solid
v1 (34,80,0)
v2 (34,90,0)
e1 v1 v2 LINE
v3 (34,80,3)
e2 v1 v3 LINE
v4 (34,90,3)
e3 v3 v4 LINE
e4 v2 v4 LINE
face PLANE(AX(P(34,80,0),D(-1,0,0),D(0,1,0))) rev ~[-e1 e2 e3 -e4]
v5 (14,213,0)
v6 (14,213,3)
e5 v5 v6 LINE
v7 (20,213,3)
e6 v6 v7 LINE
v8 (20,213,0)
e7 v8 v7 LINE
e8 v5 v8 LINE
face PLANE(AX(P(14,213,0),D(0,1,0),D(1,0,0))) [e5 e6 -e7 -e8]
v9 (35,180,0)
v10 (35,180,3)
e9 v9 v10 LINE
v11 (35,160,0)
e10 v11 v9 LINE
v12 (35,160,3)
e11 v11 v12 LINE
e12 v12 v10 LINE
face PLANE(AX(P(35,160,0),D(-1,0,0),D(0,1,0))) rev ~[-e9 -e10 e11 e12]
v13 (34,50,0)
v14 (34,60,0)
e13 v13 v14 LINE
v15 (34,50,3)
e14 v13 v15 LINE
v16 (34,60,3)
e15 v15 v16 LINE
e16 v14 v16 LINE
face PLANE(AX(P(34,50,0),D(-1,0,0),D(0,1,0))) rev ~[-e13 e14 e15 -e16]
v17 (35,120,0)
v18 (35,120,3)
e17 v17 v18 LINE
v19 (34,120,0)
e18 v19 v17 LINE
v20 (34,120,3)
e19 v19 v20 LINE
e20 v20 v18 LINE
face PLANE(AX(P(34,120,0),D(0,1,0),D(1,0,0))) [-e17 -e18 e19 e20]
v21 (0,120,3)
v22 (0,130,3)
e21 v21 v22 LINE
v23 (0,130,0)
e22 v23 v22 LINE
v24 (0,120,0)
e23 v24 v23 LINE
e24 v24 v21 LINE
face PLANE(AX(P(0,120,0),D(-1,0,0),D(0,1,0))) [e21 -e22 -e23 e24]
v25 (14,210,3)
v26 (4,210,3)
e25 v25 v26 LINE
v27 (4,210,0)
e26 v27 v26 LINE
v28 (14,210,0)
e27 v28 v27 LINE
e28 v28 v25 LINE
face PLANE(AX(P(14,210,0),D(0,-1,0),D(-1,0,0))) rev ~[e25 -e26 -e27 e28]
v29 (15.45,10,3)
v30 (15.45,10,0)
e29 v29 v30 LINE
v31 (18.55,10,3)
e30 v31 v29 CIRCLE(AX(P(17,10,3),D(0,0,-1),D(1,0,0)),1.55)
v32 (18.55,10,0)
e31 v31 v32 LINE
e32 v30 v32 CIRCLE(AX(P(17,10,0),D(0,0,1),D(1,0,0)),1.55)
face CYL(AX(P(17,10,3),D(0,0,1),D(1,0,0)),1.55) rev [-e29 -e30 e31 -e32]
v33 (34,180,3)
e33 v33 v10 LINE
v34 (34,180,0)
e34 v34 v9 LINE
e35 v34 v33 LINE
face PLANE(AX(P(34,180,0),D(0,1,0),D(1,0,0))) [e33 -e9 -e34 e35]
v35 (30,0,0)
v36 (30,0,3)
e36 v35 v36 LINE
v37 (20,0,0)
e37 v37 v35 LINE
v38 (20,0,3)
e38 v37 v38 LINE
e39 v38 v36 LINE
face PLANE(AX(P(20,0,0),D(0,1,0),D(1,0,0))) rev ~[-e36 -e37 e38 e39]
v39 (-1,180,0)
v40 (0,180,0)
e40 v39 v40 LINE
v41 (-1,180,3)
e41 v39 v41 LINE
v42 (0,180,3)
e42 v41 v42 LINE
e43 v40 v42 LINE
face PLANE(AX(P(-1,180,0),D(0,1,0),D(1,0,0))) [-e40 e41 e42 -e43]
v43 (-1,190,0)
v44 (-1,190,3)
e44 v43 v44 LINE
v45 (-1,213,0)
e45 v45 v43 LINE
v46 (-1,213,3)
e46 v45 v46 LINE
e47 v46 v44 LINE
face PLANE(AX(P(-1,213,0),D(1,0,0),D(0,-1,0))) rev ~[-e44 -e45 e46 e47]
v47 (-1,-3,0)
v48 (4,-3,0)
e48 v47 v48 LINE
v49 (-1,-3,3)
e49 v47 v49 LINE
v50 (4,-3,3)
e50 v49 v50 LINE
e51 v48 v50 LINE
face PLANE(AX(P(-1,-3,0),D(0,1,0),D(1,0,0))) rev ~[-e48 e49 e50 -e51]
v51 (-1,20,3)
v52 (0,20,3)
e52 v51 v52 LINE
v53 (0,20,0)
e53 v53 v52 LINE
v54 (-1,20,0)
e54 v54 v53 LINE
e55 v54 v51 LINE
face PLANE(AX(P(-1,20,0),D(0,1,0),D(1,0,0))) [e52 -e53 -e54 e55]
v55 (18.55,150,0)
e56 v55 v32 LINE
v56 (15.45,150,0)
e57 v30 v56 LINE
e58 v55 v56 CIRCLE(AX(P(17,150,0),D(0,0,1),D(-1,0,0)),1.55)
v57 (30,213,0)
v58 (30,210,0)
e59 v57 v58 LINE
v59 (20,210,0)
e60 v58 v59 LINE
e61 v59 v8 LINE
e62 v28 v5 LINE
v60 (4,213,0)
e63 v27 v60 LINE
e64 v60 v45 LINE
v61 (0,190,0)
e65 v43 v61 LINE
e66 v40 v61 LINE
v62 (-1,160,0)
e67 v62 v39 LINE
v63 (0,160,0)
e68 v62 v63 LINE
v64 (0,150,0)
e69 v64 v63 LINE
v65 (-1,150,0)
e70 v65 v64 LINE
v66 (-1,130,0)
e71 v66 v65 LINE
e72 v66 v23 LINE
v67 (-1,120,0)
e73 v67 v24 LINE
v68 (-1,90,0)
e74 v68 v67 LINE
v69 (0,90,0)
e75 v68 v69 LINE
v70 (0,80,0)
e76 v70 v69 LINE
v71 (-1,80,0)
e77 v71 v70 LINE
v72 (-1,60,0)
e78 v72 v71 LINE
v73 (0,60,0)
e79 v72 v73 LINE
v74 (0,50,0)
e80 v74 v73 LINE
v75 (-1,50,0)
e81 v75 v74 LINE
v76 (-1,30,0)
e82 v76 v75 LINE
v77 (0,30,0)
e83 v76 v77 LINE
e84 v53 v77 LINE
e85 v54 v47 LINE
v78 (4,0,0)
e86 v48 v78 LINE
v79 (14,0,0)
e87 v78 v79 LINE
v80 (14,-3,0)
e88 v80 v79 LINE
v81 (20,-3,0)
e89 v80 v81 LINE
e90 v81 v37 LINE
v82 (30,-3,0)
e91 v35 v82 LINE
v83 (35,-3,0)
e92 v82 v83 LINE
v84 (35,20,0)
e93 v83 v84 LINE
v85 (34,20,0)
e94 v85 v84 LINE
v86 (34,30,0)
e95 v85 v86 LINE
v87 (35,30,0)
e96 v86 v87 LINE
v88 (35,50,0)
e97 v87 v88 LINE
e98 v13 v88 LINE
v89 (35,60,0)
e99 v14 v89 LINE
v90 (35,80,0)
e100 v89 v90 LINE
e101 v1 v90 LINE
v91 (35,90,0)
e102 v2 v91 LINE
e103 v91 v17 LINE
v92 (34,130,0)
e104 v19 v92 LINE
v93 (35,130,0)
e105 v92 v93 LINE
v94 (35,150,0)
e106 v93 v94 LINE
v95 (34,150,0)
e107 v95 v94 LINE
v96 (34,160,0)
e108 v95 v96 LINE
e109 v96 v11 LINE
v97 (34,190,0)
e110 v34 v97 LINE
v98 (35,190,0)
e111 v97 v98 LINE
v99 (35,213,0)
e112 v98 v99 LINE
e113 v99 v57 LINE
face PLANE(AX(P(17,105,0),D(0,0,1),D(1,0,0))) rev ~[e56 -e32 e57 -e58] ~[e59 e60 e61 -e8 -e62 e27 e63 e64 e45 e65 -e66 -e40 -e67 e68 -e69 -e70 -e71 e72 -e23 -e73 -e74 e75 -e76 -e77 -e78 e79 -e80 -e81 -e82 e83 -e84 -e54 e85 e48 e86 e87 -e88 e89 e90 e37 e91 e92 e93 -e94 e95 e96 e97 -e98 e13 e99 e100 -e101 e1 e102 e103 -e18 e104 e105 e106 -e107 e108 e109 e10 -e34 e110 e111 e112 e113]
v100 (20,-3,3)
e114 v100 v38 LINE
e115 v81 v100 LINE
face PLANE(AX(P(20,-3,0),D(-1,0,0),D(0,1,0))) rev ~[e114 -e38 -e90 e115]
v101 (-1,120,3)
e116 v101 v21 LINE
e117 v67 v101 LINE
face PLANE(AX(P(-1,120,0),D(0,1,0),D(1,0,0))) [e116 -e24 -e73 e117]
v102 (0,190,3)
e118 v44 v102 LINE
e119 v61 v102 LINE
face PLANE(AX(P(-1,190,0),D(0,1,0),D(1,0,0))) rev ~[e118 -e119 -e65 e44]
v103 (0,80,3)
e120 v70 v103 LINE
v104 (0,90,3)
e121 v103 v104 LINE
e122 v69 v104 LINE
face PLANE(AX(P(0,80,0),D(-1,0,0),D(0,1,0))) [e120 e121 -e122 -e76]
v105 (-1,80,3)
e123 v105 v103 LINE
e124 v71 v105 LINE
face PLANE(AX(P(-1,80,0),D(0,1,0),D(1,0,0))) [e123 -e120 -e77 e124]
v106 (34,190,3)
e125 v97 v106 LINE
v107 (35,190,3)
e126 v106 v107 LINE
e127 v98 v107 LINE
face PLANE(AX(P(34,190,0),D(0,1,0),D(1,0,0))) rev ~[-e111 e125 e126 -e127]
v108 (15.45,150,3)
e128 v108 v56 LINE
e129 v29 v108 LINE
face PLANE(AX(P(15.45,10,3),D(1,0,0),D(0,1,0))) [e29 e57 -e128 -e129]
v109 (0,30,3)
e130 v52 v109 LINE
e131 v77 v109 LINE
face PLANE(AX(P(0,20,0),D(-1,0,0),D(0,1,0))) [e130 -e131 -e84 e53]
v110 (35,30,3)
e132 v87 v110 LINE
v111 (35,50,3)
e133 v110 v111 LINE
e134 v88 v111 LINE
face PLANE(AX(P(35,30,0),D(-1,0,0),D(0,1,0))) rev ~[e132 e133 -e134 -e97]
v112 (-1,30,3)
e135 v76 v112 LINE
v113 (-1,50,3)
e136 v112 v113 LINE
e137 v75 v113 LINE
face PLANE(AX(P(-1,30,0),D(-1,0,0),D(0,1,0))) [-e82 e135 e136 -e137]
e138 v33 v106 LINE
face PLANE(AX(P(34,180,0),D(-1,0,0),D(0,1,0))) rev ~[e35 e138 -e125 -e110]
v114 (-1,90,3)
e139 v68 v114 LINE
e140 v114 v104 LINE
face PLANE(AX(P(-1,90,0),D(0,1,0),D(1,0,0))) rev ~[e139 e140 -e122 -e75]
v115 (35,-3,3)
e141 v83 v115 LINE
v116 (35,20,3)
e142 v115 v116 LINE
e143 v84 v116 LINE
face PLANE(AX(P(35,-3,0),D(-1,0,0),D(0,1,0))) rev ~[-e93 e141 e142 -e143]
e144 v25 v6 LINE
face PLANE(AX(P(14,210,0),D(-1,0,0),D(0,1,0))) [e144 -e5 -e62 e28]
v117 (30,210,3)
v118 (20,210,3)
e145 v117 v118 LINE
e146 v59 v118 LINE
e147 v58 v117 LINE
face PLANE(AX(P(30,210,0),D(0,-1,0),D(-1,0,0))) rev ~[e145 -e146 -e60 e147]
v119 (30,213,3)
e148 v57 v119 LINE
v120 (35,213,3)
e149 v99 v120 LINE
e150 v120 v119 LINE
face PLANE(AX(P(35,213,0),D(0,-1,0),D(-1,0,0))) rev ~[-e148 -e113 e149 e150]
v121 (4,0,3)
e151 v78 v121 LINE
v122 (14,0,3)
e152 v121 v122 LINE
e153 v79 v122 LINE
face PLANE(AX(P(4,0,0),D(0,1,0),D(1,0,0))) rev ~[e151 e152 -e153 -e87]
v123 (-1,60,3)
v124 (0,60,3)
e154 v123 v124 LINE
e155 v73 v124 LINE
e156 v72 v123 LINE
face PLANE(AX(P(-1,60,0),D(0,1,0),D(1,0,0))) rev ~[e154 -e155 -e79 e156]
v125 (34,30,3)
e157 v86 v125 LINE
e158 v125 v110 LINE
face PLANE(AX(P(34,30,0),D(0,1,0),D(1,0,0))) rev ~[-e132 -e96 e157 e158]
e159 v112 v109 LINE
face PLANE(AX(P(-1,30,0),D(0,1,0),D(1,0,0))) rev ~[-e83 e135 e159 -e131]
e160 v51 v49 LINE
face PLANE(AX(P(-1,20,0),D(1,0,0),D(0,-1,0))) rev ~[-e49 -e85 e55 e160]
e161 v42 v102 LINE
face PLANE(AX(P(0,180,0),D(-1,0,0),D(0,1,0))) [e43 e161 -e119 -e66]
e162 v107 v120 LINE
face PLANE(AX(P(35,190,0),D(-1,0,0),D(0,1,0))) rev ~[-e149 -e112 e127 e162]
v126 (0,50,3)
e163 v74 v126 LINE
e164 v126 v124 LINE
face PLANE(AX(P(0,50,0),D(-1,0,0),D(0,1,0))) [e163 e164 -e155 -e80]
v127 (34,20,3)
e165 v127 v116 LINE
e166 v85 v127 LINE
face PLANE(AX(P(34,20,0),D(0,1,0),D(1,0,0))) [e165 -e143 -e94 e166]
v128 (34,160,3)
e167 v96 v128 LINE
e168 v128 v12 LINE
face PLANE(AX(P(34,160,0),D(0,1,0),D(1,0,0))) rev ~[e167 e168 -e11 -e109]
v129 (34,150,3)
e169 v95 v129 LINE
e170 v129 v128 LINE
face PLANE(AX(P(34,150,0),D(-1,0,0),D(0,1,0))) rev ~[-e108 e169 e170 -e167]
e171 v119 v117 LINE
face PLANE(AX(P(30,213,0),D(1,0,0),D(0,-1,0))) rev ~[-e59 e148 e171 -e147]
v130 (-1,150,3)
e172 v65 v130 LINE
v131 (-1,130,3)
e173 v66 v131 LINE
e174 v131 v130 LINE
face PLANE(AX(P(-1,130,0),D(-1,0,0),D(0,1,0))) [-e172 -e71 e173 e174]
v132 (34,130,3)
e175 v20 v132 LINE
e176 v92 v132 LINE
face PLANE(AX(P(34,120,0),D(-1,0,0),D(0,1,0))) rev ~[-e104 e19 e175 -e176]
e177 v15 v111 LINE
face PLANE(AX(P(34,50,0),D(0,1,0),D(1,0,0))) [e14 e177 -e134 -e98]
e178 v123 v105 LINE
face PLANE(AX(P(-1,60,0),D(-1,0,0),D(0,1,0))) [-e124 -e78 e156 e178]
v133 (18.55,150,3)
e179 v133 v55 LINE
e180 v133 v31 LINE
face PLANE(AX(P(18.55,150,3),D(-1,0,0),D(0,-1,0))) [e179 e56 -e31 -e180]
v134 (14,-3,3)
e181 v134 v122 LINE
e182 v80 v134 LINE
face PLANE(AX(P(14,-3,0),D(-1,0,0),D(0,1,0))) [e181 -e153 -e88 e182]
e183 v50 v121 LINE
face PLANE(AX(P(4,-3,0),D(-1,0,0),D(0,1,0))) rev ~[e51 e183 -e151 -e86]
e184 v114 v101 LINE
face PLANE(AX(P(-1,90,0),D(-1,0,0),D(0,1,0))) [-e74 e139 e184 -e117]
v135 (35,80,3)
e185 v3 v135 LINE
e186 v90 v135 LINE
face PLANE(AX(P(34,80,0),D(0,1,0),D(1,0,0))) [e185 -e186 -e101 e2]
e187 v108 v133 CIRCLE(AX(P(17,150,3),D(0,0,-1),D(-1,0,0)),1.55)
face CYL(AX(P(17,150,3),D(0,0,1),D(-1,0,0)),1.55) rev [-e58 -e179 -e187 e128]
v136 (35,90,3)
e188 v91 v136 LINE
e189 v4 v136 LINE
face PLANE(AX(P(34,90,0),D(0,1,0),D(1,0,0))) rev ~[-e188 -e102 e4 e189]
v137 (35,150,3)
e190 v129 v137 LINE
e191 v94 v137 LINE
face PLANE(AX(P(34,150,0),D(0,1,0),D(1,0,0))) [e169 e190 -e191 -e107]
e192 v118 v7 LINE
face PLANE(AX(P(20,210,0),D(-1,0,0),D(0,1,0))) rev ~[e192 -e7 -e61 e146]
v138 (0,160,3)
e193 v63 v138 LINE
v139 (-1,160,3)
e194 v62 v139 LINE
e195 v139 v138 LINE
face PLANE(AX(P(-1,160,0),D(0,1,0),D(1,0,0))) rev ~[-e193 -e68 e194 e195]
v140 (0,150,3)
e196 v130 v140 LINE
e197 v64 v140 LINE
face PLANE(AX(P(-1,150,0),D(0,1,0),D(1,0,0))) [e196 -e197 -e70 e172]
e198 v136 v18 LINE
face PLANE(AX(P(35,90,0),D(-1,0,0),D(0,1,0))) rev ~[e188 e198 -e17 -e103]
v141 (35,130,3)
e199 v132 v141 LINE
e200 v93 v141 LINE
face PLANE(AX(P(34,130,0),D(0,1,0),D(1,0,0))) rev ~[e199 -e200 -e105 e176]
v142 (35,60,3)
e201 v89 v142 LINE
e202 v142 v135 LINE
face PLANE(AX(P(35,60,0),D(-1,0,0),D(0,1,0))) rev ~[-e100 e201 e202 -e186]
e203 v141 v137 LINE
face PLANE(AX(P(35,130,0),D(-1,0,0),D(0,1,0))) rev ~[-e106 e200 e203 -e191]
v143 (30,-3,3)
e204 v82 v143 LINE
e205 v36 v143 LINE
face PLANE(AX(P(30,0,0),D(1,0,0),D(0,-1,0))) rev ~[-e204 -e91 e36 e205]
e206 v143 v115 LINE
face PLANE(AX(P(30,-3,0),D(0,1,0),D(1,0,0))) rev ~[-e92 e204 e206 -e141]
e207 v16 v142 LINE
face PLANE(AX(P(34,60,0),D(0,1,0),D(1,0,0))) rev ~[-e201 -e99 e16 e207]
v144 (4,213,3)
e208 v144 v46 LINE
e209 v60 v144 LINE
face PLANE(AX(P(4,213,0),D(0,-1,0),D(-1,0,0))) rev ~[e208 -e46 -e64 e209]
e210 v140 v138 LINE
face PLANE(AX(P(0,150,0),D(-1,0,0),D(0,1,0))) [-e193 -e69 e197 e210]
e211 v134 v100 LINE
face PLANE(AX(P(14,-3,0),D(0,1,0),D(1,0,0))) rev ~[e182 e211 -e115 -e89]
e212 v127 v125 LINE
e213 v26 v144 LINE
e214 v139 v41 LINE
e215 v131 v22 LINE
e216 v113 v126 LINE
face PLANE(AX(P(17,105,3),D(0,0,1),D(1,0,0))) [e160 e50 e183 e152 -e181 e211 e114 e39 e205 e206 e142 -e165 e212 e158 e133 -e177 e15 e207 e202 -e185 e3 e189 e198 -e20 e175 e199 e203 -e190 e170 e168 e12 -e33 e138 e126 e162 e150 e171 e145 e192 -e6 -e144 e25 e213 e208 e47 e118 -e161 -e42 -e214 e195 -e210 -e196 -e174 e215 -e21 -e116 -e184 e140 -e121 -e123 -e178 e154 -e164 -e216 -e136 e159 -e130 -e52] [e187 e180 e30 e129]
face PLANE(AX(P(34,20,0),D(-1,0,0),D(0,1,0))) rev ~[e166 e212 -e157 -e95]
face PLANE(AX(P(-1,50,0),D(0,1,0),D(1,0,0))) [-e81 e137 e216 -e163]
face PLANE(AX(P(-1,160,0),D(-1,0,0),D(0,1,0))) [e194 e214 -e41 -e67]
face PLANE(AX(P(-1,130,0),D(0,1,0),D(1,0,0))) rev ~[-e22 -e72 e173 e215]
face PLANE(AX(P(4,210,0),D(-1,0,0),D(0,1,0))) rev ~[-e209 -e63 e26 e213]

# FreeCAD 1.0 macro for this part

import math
import FreeCAD as App
import Part
import Sketcher

V = App.Vector


def add_polygon(sketch, points):
    """Adds a closed chain of lines whose ends are joined by coincident constraints."""
    first, n = sketch.GeometryCount, len(points)
    for a, b in zip(points, points[1:] + points[:1]):
        sketch.addGeometry(Part.LineSegment(App.Vector(*a, 0), App.Vector(*b, 0)), False)
    for i in range(n):
        sketch.addConstraint(Sketcher.Constraint("Coincident", first + i, 2, first + (i + 1) % n, 1))

doc = App.newDocument("Part")
params = doc.addObject("Spreadsheet::Sheet", "Params")
for row, (alias, value) in enumerate([
    ("sketch1_width", "1 mm"),
    ("sketch1_width2", "5 mm"),
    ("sketch1_width3", "10 mm"),
    ("sketch1_width4", "6 mm"),
    ("sketch1_height", "23 mm"),
    ("pad1_length", "3 mm"),
    ("sketch2_height", "140 mm"),
    ("sketch2_radius", "1.55 mm"),
], start=1):
    params.set(f"A{row}", alias)
    params.set(f"B{row}", "=" + value)
    params.setAlias(f"B{row}", alias)

body = doc.addObject("PartDesign::Body", "Body")

sketch1 = body.newObject("Sketcher::SketchObject", "Sketch")
sketch1.AttachmentSupport = (doc.getObject("XY_Plane"), [""])
sketch1.MapMode = "FlatFace"
add_polygon(sketch1, [(0, 30), (0, 20), (-1, 20), (-1, -3), (4, -3), (4, 0), (14, 0), (14, -3), (20, -3), (20, 0), (30, 0), (30, -3), (35, -3), (35, 20), (34, 20), (34, 30), (35, 30), (35, 50), (34, 50), (34, 60), (35, 60), (35, 80), (34, 80), (34, 90), (35, 90), (35, 120), (34, 120), (34, 130), (35, 130), (35, 150), (34, 150), (34, 160), (35, 160), (35, 180), (34, 180), (34, 190), (35, 190), (35, 213), (30, 213), (30, 210), (20, 210), (20, 213), (14, 213), (14, 210), (4, 210), (4, 213), (-1, 213), (-1, 190), (0, 190), (0, 180), (-1, 180), (-1, 160), (0, 160), (0, 150), (-1, 150), (-1, 130), (0, 130), (0, 120), (-1, 120), (-1, 90), (0, 90), (0, 80), (-1, 80), (-1, 60), (0, 60), (0, 50), (-1, 50), (-1, 30)])
sketch1.addConstraint([
    Sketcher.Constraint("Vertical", 0),
    Sketcher.Constraint("Horizontal", 1),
    Sketcher.Constraint("Vertical", 2),
    Sketcher.Constraint("Horizontal", 3),
    Sketcher.Constraint("Vertical", 4),
    Sketcher.Constraint("Horizontal", 5),
    Sketcher.Constraint("Vertical", 6),
    Sketcher.Constraint("Horizontal", 7),
    Sketcher.Constraint("Vertical", 8),
    Sketcher.Constraint("Horizontal", 9),
    Sketcher.Constraint("Vertical", 10),
    Sketcher.Constraint("Horizontal", 11),
    Sketcher.Constraint("Vertical", 12),
    Sketcher.Constraint("Horizontal", 13),
    Sketcher.Constraint("Vertical", 14),
    Sketcher.Constraint("Horizontal", 15),
    Sketcher.Constraint("Vertical", 16),
    Sketcher.Constraint("Horizontal", 17),
    Sketcher.Constraint("Vertical", 18),
    Sketcher.Constraint("Horizontal", 19),
    Sketcher.Constraint("Vertical", 20),
    Sketcher.Constraint("Horizontal", 21),
    Sketcher.Constraint("Vertical", 22),
    Sketcher.Constraint("Horizontal", 23),
    Sketcher.Constraint("Vertical", 24),
    Sketcher.Constraint("Horizontal", 25),
    Sketcher.Constraint("Vertical", 26),
    Sketcher.Constraint("Horizontal", 27),
    Sketcher.Constraint("Vertical", 28),
    Sketcher.Constraint("Horizontal", 29),
    Sketcher.Constraint("Vertical", 30),
    Sketcher.Constraint("Horizontal", 31),
    Sketcher.Constraint("Vertical", 32),
    Sketcher.Constraint("Horizontal", 33),
    Sketcher.Constraint("Vertical", 34),
    Sketcher.Constraint("Horizontal", 35),
    Sketcher.Constraint("Vertical", 36),
    Sketcher.Constraint("Horizontal", 37),
    Sketcher.Constraint("Vertical", 38),
    Sketcher.Constraint("Horizontal", 39),
    Sketcher.Constraint("Vertical", 40),
    Sketcher.Constraint("Horizontal", 41),
    Sketcher.Constraint("Vertical", 42),
    Sketcher.Constraint("Horizontal", 43),
    Sketcher.Constraint("Vertical", 44),
    Sketcher.Constraint("Horizontal", 45),
    Sketcher.Constraint("Vertical", 46),
    Sketcher.Constraint("Horizontal", 47),
    Sketcher.Constraint("Vertical", 48),
    Sketcher.Constraint("Horizontal", 49),
    Sketcher.Constraint("Vertical", 50),
    Sketcher.Constraint("Horizontal", 51),
    Sketcher.Constraint("Vertical", 52),
    Sketcher.Constraint("Horizontal", 53),
    Sketcher.Constraint("Vertical", 54),
    Sketcher.Constraint("Horizontal", 55),
    Sketcher.Constraint("Vertical", 56),
    Sketcher.Constraint("Horizontal", 57),
    Sketcher.Constraint("Vertical", 58),
    Sketcher.Constraint("Horizontal", 59),
    Sketcher.Constraint("Vertical", 60),
    Sketcher.Constraint("Horizontal", 61),
    Sketcher.Constraint("Vertical", 62),
    Sketcher.Constraint("Horizontal", 63),
    Sketcher.Constraint("Vertical", 64),
    Sketcher.Constraint("Horizontal", 65),
    Sketcher.Constraint("Vertical", 66),
    Sketcher.Constraint("Horizontal", 67),
    Sketcher.Constraint("PointOnObject", 0, 2, -2),
    Sketcher.Constraint("PointOnObject", 4, 2, -1),
    Sketcher.Constraint("PointOnObject", 8, 2, -1),
    Sketcher.Constraint("PointOnObject", 47, 2, -2),
    Sketcher.Constraint("PointOnObject", 51, 2, -2),
    Sketcher.Constraint("PointOnObject", 55, 2, -2),
    Sketcher.Constraint("PointOnObject", 59, 2, -2),
    Sketcher.Constraint("PointOnObject", 63, 2, -2),
    Sketcher.Constraint("Horizontal", 3, 2, 6, 2),
    Sketcher.Constraint("Horizontal", 7, 2, 10, 2),
    Sketcher.Constraint("Horizontal", 1, 2, 12, 2),
    Sketcher.Constraint("Horizontal", 37, 2, 40, 2),
    Sketcher.Constraint("Horizontal", 39, 2, 42, 2),
    Sketcher.Constraint("Horizontal", 41, 2, 44, 2),
    Sketcher.Constraint("Horizontal", 35, 2, 46, 2),
    Sketcher.Constraint("Horizontal", 33, 2, 48, 2),
    Sketcher.Constraint("Horizontal", 31, 2, 50, 2),
    Sketcher.Constraint("Horizontal", 29, 2, 52, 2),
    Sketcher.Constraint("Horizontal", 27, 2, 54, 2),
    Sketcher.Constraint("Horizontal", 25, 2, 56, 2),
    Sketcher.Constraint("Horizontal", 23, 2, 58, 2),
    Sketcher.Constraint("Horizontal", 21, 2, 60, 2),
    Sketcher.Constraint("Horizontal", 19, 2, 62, 2),
    Sketcher.Constraint("Horizontal", 17, 2, 64, 2),
    Sketcher.Constraint("Horizontal", 15, 2, 66, 2),
    Sketcher.Constraint("Vertical", 12, 2, 15, 2),
    Sketcher.Constraint("Vertical", 14, 2, 17, 2),
    Sketcher.Constraint("Vertical", 16, 2, 19, 2),
    Sketcher.Constraint("Vertical", 18, 2, 21, 2),
    Sketcher.Constraint("Vertical", 20, 2, 23, 2),
    Sketcher.Constraint("Vertical", 22, 2, 25, 2),
    Sketcher.Constraint("Vertical", 24, 2, 27, 2),
    Sketcher.Constraint("Vertical", 26, 2, 29, 2),
    Sketcher.Constraint("Vertical", 28, 2, 31, 2),
    Sketcher.Constraint("Vertical", 30, 2, 33, 2),
    Sketcher.Constraint("Vertical", 32, 2, 35, 2),
    Sketcher.Constraint("Vertical", 10, 2, 37, 2),
    Sketcher.Constraint("Vertical", 8, 2, 39, 2),
    Sketcher.Constraint("Vertical", 6, 2, 41, 2),
    Sketcher.Constraint("Vertical", 4, 2, 43, 2),
    Sketcher.Constraint("Vertical", 2, 2, 45, 2),
    Sketcher.Constraint("Vertical", 46, 2, 49, 2),
    Sketcher.Constraint("Vertical", 50, 2, 53, 2),
    Sketcher.Constraint("Vertical", 54, 2, 57, 2),
    Sketcher.Constraint("Vertical", 58, 2, 61, 2),
    Sketcher.Constraint("Vertical", 62, 2, 65, 2),
    Sketcher.Constraint("Equal", 5, 9),
    Sketcher.Constraint("Equal", 3, 11),
    Sketcher.Constraint("Equal", 1, 13),
    Sketcher.Constraint("Equal", 43, 0),
    Sketcher.Constraint("Equal", 14, 18),
    Sketcher.Constraint("Equal", 16, 20),
    Sketcher.Constraint("Equal", 18, 22),
    Sketcher.Constraint("Equal", 22, 26),
    Sketcher.Constraint("Equal", 20, 28),
    Sketcher.Constraint("Equal", 26, 30),
    Sketcher.Constraint("Equal", 28, 32),
    Sketcher.Constraint("Equal", 30, 34),
    Sketcher.Constraint("Equal", 12, 36),
    Sketcher.Constraint("Equal", 10, 38),
    Sketcher.Constraint("DistanceX", 1, 2, 1, 1, 1.0),
    Sketcher.Constraint("DistanceX", 3, 1, 3, 2, 5.0),
    Sketcher.Constraint("DistanceX", 5, 1, 5, 2, 10.0),
    Sketcher.Constraint("DistanceX", 7, 1, 7, 2, 6.0),
    Sketcher.Constraint("DistanceY", 2, 2, 2, 1, 23.0),
    Sketcher.Constraint("DistanceY", 4, 1, 4, 2, 3.0),
    Sketcher.Constraint("DistanceY", 16, 1, 16, 2, 20.0),
    Sketcher.Constraint("DistanceY", 24, 1, 24, 2, 30.0),
])
sketch1.setExpression("Constraints[196]", "Params.sketch1_width")
sketch1.setExpression("Constraints[197]", "Params.sketch1_width2")
sketch1.setExpression("Constraints[198]", "Params.sketch1_width3")
sketch1.setExpression("Constraints[199]", "Params.sketch1_width4")
sketch1.setExpression("Constraints[200]", "Params.sketch1_height")
pad1 = body.newObject("PartDesign::Pad", "Pad")
pad1.Profile = sketch1
pad1.setExpression("Length", "Params.pad1_length")

sketch2 = body.newObject("Sketcher::SketchObject", "Sketch001")
sketch2.AttachmentSupport = (doc.getObject("XY_Plane"), [""])
sketch2.MapMode = "FlatFace"
sketch2.AttachmentOffset = App.Placement(V(0, 0, 3), App.Rotation())
sketch2.addGeometry([
    Part.LineSegment(V(18.6, 10, 0), V(18.6, 150, 0)),
    Part.ArcOfCircle(Part.Circle(V(17, 150, 0), V(0, 0, 1), 1.6), math.radians(0), math.radians(180)),
    Part.LineSegment(V(15.4, 150, 0), V(15.4, 10, 0)),
    Part.ArcOfCircle(Part.Circle(V(17, 10, 0), V(0, 0, 1), 1.6), math.radians(180), math.radians(360)),
], False)
sketch2.addConstraint([
    Sketcher.Constraint("Tangent", 0, 2, 1, 1),
    Sketcher.Constraint("Tangent", 1, 2, 2, 1),
    Sketcher.Constraint("Tangent", 2, 2, 3, 1),
    Sketcher.Constraint("Tangent", 3, 2, 0, 1),
    Sketcher.Constraint("Vertical", 0),
    Sketcher.Constraint("Vertical", 2),
    Sketcher.Constraint("DistanceY", 0, 1, 0, 2, 140.0),
    Sketcher.Constraint("Radius", 1, 1.55),
    Sketcher.Constraint("DistanceX", -1, 1, 1, 3, 17.0),
    Sketcher.Constraint("DistanceY", -1, 1, 1, 3, 150.0),
])
sketch2.setExpression("Constraints[6]", "Params.sketch2_height")
sketch2.setExpression("Constraints[7]", "Params.sketch2_radius")
pocket1 = body.newObject("PartDesign::Pocket", "Pocket")
pocket1.Profile = sketch2
pocket1.Type = "ThroughAll"

doc.recompute()
